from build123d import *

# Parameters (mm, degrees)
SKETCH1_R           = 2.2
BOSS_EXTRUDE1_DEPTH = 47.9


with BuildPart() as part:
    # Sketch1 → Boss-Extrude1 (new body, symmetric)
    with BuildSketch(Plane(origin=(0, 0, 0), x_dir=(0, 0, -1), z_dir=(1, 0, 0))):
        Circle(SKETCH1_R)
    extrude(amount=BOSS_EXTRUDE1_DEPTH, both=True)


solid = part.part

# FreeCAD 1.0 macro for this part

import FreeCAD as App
import Part
import Sketcher

V = App.Vector
Q = App.Units.Quantity

doc = App.newDocument("Part")
body = doc.addObject("PartDesign::Body", "Body")

# Sketch on YZ plane
sketch1 = doc.addObject("Sketcher::SketchObject", "Sketch")
body.addObject(sketch1)
sketch1.AttachmentSupport = (doc.YZ_Plane, [""])
sketch1.MapMode = "FlatFace"
sketch1.addGeometry(Part.Circle(V(0, 0, 0), V(0, 0, 1), 2.2), False)
sketch1.addConstraint([
    Sketcher.Constraint("Coincident", 0, 3, -1, 1),
    Sketcher.Constraint("Diameter", 0, Q("4.4 mm")),
])
pad1 = doc.addObject("PartDesign::Pad", "Pad")
body.addObject(pad1)
pad1.Profile = sketch1
pad1.Length = 95.8
pad1.Midplane = True

doc.recompute()
